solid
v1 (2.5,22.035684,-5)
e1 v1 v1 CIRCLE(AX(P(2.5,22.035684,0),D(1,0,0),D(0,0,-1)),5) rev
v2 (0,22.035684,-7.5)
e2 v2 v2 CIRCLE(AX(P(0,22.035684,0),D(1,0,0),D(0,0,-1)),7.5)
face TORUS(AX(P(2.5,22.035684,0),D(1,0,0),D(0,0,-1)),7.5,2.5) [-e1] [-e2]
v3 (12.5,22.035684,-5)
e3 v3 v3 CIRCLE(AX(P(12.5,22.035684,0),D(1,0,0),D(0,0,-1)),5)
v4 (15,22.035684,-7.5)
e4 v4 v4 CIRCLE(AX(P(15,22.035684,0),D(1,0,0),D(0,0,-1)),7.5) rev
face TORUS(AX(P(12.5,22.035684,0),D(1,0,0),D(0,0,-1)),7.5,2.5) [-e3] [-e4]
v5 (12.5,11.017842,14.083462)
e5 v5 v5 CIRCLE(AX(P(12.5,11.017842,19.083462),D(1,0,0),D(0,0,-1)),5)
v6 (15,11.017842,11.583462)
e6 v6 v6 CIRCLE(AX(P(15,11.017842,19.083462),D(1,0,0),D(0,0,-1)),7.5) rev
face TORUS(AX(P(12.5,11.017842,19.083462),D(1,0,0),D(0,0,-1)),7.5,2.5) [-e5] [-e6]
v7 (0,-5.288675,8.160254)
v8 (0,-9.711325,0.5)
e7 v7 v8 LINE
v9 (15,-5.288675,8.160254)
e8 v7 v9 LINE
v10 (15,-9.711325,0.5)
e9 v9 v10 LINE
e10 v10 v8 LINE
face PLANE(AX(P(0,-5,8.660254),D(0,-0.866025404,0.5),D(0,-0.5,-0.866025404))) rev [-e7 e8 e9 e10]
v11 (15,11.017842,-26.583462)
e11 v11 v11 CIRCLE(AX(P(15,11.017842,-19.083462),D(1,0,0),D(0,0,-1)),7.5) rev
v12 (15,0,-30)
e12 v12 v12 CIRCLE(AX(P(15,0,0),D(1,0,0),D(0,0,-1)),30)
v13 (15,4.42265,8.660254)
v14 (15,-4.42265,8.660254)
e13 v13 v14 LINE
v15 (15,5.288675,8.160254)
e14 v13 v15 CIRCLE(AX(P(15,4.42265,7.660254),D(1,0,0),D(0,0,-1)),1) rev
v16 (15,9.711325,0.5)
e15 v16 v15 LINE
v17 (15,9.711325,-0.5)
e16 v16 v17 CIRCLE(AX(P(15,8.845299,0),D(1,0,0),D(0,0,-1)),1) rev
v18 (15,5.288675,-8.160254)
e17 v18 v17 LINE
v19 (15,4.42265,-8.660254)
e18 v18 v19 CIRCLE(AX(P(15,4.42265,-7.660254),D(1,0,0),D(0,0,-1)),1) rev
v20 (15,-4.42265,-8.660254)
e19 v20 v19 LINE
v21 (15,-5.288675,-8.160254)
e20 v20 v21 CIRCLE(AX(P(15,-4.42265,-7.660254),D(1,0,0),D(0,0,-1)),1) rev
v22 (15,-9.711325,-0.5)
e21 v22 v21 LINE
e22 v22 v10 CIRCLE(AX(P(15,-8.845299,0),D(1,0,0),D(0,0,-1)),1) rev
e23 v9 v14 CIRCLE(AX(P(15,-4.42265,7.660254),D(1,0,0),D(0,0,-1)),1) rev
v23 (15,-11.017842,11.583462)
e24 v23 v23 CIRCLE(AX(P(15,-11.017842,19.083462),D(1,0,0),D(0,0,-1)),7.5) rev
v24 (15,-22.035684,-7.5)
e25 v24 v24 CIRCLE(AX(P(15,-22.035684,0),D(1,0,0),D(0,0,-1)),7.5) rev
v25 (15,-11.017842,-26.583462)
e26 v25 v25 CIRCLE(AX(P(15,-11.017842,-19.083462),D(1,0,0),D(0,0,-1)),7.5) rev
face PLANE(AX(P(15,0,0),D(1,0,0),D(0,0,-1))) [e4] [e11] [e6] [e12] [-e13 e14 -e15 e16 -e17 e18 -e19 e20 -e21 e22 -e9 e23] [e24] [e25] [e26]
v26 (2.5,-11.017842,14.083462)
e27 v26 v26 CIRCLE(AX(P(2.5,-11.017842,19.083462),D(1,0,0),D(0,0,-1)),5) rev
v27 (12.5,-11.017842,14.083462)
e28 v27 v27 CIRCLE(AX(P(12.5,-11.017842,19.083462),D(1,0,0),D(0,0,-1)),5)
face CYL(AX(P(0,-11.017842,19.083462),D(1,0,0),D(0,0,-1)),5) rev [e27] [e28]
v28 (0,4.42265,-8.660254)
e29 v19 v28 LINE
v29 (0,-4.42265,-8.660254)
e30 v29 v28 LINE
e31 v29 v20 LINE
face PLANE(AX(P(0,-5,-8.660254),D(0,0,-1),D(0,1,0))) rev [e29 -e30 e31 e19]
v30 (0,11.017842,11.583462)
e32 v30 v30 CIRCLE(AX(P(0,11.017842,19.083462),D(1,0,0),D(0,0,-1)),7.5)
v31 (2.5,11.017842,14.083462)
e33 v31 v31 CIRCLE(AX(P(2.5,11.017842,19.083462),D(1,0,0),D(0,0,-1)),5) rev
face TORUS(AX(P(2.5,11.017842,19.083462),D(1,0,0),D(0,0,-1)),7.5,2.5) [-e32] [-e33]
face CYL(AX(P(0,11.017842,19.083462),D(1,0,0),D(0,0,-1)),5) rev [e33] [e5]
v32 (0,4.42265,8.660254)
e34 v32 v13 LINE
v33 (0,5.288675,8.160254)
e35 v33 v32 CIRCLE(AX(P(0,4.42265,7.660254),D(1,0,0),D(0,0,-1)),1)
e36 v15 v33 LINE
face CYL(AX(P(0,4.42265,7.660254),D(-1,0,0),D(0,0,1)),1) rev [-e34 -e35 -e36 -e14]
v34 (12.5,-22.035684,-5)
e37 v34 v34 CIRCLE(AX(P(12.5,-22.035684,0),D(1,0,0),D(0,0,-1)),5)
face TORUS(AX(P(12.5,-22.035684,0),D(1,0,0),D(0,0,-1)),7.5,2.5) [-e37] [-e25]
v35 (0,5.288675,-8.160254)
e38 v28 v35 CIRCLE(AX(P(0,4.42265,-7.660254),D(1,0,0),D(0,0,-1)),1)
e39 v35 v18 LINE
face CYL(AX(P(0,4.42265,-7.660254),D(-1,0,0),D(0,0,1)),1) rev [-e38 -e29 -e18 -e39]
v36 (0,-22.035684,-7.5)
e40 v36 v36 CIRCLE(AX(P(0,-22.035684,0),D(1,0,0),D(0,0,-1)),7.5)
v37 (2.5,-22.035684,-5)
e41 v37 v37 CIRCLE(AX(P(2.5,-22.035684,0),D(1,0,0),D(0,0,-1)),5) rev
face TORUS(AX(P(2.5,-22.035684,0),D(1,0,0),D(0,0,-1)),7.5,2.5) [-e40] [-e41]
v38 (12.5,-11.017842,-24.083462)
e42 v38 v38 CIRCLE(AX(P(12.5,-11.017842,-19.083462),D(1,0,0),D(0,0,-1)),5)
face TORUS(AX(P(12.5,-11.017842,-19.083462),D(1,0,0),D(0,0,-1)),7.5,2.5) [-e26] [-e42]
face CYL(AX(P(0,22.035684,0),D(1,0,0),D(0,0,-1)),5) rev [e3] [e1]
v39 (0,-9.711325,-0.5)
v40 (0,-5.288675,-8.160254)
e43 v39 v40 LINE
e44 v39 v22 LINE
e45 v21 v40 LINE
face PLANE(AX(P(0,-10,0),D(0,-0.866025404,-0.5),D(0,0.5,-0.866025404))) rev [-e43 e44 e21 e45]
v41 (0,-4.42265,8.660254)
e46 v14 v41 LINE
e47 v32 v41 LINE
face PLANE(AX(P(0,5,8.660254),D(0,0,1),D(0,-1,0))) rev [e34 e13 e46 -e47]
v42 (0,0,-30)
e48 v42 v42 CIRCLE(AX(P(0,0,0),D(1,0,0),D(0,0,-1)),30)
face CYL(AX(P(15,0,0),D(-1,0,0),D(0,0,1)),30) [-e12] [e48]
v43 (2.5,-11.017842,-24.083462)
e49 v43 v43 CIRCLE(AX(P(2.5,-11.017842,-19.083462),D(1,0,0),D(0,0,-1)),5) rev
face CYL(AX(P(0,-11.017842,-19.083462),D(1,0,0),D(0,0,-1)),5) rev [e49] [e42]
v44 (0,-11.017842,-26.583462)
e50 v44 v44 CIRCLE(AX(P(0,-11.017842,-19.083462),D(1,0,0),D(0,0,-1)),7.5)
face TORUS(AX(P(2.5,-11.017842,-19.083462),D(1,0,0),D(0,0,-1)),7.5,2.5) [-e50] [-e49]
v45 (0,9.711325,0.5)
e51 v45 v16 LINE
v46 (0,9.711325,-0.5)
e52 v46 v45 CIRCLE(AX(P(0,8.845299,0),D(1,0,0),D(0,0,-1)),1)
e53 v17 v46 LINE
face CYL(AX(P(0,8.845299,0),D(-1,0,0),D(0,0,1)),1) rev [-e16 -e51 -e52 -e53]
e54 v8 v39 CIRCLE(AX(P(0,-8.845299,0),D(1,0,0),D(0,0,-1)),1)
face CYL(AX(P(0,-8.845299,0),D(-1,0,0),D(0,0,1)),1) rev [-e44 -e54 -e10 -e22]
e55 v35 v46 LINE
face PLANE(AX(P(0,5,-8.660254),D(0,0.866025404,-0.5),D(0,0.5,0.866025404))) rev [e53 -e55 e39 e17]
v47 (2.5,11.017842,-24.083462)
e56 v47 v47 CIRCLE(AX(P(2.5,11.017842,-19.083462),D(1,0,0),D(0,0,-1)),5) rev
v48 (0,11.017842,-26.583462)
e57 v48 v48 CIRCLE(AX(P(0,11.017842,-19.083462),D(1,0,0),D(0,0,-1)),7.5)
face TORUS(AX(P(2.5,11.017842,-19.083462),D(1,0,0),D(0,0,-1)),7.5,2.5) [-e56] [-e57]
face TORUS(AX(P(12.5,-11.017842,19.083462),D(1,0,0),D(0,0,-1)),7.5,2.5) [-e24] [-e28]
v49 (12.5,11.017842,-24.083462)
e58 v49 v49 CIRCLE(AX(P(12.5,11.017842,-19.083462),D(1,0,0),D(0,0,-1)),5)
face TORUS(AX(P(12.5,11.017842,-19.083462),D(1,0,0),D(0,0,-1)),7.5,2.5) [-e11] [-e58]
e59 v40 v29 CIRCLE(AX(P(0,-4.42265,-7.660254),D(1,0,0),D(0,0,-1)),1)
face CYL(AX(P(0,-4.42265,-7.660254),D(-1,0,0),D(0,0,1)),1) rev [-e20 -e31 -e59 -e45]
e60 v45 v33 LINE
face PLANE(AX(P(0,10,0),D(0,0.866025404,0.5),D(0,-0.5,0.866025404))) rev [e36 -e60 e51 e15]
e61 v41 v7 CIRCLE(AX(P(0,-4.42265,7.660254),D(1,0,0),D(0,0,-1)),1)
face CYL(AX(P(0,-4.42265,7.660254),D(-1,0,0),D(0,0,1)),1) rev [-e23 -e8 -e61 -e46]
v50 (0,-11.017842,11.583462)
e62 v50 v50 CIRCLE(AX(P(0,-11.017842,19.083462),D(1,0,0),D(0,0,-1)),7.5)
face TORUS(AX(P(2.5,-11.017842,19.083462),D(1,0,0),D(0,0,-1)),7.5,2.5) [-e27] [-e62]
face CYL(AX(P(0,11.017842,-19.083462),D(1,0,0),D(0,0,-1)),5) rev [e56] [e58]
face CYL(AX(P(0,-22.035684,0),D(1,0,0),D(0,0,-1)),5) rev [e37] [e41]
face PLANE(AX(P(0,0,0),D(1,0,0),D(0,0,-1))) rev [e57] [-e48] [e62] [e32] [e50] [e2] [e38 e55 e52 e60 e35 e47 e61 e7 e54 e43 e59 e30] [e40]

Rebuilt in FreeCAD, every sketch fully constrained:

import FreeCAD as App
import Part
import Sketcher
Q = App.Units.Quantity


def edges_at(feature, points):
    """Names of the edges that pass closest to the given points."""
    edges = feature.Shape.Edges
    near = lambda p: min(range(len(edges)), key=lambda i: edges[i].distToShape(Part.Vertex(*p))[0])
    return sorted({f"Edge{near(p) + 1}" for p in points})

doc = App.newDocument("Part")
params = doc.addObject("Spreadsheet::Sheet", "Params")
for row, (alias, value) in enumerate([
    ("sketch1_diameter", "60 mm"),
    ("pad1_length", "15 mm"),
    ("sketch2_diameter", "10 mm"),
    ("sketch2_width", "10 mm"),
    ("sketch2_length", "10 mm"),
    ("fillet_radius", "2.5 mm"),
    ("fillet2_radius", "1 mm"),
], start=1):
    params.set(f"A{row}", alias)
    params.set(f"B{row}", "=" + value)
    params.setAlias(f"B{row}", alias)

body = doc.addObject("PartDesign::Body", "Body")

sketch1 = doc.addObject("Sketcher::SketchObject", "Sketch")
body.addObject(sketch1)
sketch1.AttachmentSupport = (doc.YZ_Plane, [""])
sketch1.MapMode = "FlatFace"
sketch1.addGeometry(Part.Circle(App.Vector(0, 0, 0), App.Vector(0, 0, 1), 30), False)
sketch1.addConstraint([
    Sketcher.Constraint("Coincident", 0, 3, -1, 1),
    Sketcher.Constraint("Diameter", 0, Q("60 mm")),
])
sketch1.setExpression("Constraints[1]", "Params.sketch1_diameter")
pad1 = doc.addObject("PartDesign::Pad", "Pad")
body.addObject(pad1)
pad1.Profile = sketch1
pad1.setExpression("Length", "Params.pad1_length")

sketch2 = doc.addObject("Sketcher::SketchObject", "Sketch001")
body.addObject(sketch2)
sketch2.AttachmentSupport = (doc.YZ_Plane, [""])
sketch2.MapMode = "FlatFace"
sketch2.AttachmentOffset = App.Placement(App.Vector(0, 0, 15), App.Rotation())
sketch2.addGeometry([
    Part.Circle(App.Vector(22, 0, 0), App.Vector(0, 0, 1), 5),
    Part.Circle(App.Vector(11, -19, 0), App.Vector(0, 0, 1), 5),
    Part.Circle(App.Vector(-11, -19, 0), App.Vector(0, 0, 1), 5),
    Part.Circle(App.Vector(-22, 0, 0), App.Vector(0, 0, 1), 5),
    Part.Circle(App.Vector(-11, 19, 0), App.Vector(0, 0, 1), 5),
    Part.Circle(App.Vector(11, 19, 0), App.Vector(0, 0, 1), 5),
    Part.LineSegment(App.Vector(10, 0, 0), App.Vector(5, 9, 0)),
    Part.LineSegment(App.Vector(5, 9, 0), App.Vector(-5, 9, 0)),
    Part.LineSegment(App.Vector(-5, 9, 0), App.Vector(-10, 0, 0)),
    Part.LineSegment(App.Vector(-10, 0, 0), App.Vector(-5, -9, 0)),
    Part.LineSegment(App.Vector(-5, -9, 0), App.Vector(5, -9, 0)),
    Part.LineSegment(App.Vector(5, -9, 0), App.Vector(10, 0, 0)),
], False)
sketch2.addConstraint([
    Sketcher.Constraint("Coincident", 6, 2, 7, 1),
    Sketcher.Constraint("Coincident", 7, 2, 8, 1),
    Sketcher.Constraint("Coincident", 8, 2, 9, 1),
    Sketcher.Constraint("Coincident", 9, 2, 10, 1),
    Sketcher.Constraint("Coincident", 10, 2, 11, 1),
    Sketcher.Constraint("Coincident", 11, 2, 6, 1),
    Sketcher.Constraint("Horizontal", 7),
    Sketcher.Constraint("Horizontal", 10),
    Sketcher.Constraint("Equal", 0, 1),
    Sketcher.Constraint("Equal", 1, 2),
    Sketcher.Constraint("Equal", 2, 3),
    Sketcher.Constraint("Equal", 3, 4),
    Sketcher.Constraint("Equal", 4, 5),
    Sketcher.Constraint("Symmetric", 0, 3, 3, 3, -1, 1),
    Sketcher.Constraint("Symmetric", 1, 3, 4, 3, -1, 1),
    Sketcher.Constraint("Symmetric", 2, 3, 5, 3, -1, 1),
    Sketcher.Constraint("Symmetric", 6, 2, 9, 2, -1, 1),
    Sketcher.Constraint("Symmetric", 8, 2, 11, 2, -1, 1),
    Sketcher.Constraint("Symmetric", 1, 3, 2, 3, -2),
    Sketcher.Constraint("PointOnObject", 0, 3, -1),
    Sketcher.Constraint("PointOnObject", 8, 2, -1),
    Sketcher.Constraint("Parallel", 8, 11),
    Sketcher.Constraint("Vertical", 7, 2, 9, 2),
    Sketcher.Constraint("Diameter", 0, Q("10 mm")),
    Sketcher.Constraint("DistanceX", 7, 2, 7, 1, Q("10 mm")),
    Sketcher.Constraint("Angle", 6, Q("120 deg")),
    Sketcher.Constraint("Distance", 6, Q("10 mm")),
    Sketcher.Constraint("DistanceX", -1, 1, 1, 3, Q("11.017842 mm")),
    Sketcher.Constraint("DistanceX", 1, 3, 0, 3, Q("11.017842 mm")),
    Sketcher.Constraint("DistanceY", 1, 3, -1, 1, Q("19.083462 mm")),
])
sketch2.setExpression("Constraints[23]", "Params.sketch2_diameter")
sketch2.setExpression("Constraints[24]", "Params.sketch2_width")
sketch2.setExpression("Constraints[26]", "Params.sketch2_length")
pocket1 = doc.addObject("PartDesign::Pocket", "Pocket")
body.addObject(pocket1)
pocket1.Profile = sketch2
pocket1.Type = "ThroughAll"
doc.recompute()

fillet = doc.addObject("PartDesign::Fillet", "Fillet")
body.addObject(fillet)
fillet.Base = (pocket1, edges_at(pocket1, [
    (0, 11.018, 24.083),
    (15, 11.018, 24.083),
    (0, -11.018, 24.083),
    (15, -11.018, 24.083),
    (0, -22.036, 5),
    (15, -22.036, 5),
    (0, -11.018, -14.083),
    (15, -11.018, -14.083),
    (0, 11.018, -14.083),
    (15, 11.018, -14.083),
    (0, 22.036, 5),
    (15, 22.036, 5),
]))
fillet.setExpression("Radius", "Params.fillet_radius")
doc.recompute()

fillet2 = doc.addObject("PartDesign::Fillet", "Fillet001")
body.addObject(fillet2)
fillet2.Base = (fillet, edges_at(fillet, [
    (7.5, 10, 0),
    (7.5, 5, -8.66),
    (7.5, -5, -8.66),
    (7.5, -10, 0),
    (7.5, -5, 8.66),
    (7.5, 5, 8.66),
]))
fillet2.setExpression("Radius", "Params.fillet2_radius")

doc.recompute()
